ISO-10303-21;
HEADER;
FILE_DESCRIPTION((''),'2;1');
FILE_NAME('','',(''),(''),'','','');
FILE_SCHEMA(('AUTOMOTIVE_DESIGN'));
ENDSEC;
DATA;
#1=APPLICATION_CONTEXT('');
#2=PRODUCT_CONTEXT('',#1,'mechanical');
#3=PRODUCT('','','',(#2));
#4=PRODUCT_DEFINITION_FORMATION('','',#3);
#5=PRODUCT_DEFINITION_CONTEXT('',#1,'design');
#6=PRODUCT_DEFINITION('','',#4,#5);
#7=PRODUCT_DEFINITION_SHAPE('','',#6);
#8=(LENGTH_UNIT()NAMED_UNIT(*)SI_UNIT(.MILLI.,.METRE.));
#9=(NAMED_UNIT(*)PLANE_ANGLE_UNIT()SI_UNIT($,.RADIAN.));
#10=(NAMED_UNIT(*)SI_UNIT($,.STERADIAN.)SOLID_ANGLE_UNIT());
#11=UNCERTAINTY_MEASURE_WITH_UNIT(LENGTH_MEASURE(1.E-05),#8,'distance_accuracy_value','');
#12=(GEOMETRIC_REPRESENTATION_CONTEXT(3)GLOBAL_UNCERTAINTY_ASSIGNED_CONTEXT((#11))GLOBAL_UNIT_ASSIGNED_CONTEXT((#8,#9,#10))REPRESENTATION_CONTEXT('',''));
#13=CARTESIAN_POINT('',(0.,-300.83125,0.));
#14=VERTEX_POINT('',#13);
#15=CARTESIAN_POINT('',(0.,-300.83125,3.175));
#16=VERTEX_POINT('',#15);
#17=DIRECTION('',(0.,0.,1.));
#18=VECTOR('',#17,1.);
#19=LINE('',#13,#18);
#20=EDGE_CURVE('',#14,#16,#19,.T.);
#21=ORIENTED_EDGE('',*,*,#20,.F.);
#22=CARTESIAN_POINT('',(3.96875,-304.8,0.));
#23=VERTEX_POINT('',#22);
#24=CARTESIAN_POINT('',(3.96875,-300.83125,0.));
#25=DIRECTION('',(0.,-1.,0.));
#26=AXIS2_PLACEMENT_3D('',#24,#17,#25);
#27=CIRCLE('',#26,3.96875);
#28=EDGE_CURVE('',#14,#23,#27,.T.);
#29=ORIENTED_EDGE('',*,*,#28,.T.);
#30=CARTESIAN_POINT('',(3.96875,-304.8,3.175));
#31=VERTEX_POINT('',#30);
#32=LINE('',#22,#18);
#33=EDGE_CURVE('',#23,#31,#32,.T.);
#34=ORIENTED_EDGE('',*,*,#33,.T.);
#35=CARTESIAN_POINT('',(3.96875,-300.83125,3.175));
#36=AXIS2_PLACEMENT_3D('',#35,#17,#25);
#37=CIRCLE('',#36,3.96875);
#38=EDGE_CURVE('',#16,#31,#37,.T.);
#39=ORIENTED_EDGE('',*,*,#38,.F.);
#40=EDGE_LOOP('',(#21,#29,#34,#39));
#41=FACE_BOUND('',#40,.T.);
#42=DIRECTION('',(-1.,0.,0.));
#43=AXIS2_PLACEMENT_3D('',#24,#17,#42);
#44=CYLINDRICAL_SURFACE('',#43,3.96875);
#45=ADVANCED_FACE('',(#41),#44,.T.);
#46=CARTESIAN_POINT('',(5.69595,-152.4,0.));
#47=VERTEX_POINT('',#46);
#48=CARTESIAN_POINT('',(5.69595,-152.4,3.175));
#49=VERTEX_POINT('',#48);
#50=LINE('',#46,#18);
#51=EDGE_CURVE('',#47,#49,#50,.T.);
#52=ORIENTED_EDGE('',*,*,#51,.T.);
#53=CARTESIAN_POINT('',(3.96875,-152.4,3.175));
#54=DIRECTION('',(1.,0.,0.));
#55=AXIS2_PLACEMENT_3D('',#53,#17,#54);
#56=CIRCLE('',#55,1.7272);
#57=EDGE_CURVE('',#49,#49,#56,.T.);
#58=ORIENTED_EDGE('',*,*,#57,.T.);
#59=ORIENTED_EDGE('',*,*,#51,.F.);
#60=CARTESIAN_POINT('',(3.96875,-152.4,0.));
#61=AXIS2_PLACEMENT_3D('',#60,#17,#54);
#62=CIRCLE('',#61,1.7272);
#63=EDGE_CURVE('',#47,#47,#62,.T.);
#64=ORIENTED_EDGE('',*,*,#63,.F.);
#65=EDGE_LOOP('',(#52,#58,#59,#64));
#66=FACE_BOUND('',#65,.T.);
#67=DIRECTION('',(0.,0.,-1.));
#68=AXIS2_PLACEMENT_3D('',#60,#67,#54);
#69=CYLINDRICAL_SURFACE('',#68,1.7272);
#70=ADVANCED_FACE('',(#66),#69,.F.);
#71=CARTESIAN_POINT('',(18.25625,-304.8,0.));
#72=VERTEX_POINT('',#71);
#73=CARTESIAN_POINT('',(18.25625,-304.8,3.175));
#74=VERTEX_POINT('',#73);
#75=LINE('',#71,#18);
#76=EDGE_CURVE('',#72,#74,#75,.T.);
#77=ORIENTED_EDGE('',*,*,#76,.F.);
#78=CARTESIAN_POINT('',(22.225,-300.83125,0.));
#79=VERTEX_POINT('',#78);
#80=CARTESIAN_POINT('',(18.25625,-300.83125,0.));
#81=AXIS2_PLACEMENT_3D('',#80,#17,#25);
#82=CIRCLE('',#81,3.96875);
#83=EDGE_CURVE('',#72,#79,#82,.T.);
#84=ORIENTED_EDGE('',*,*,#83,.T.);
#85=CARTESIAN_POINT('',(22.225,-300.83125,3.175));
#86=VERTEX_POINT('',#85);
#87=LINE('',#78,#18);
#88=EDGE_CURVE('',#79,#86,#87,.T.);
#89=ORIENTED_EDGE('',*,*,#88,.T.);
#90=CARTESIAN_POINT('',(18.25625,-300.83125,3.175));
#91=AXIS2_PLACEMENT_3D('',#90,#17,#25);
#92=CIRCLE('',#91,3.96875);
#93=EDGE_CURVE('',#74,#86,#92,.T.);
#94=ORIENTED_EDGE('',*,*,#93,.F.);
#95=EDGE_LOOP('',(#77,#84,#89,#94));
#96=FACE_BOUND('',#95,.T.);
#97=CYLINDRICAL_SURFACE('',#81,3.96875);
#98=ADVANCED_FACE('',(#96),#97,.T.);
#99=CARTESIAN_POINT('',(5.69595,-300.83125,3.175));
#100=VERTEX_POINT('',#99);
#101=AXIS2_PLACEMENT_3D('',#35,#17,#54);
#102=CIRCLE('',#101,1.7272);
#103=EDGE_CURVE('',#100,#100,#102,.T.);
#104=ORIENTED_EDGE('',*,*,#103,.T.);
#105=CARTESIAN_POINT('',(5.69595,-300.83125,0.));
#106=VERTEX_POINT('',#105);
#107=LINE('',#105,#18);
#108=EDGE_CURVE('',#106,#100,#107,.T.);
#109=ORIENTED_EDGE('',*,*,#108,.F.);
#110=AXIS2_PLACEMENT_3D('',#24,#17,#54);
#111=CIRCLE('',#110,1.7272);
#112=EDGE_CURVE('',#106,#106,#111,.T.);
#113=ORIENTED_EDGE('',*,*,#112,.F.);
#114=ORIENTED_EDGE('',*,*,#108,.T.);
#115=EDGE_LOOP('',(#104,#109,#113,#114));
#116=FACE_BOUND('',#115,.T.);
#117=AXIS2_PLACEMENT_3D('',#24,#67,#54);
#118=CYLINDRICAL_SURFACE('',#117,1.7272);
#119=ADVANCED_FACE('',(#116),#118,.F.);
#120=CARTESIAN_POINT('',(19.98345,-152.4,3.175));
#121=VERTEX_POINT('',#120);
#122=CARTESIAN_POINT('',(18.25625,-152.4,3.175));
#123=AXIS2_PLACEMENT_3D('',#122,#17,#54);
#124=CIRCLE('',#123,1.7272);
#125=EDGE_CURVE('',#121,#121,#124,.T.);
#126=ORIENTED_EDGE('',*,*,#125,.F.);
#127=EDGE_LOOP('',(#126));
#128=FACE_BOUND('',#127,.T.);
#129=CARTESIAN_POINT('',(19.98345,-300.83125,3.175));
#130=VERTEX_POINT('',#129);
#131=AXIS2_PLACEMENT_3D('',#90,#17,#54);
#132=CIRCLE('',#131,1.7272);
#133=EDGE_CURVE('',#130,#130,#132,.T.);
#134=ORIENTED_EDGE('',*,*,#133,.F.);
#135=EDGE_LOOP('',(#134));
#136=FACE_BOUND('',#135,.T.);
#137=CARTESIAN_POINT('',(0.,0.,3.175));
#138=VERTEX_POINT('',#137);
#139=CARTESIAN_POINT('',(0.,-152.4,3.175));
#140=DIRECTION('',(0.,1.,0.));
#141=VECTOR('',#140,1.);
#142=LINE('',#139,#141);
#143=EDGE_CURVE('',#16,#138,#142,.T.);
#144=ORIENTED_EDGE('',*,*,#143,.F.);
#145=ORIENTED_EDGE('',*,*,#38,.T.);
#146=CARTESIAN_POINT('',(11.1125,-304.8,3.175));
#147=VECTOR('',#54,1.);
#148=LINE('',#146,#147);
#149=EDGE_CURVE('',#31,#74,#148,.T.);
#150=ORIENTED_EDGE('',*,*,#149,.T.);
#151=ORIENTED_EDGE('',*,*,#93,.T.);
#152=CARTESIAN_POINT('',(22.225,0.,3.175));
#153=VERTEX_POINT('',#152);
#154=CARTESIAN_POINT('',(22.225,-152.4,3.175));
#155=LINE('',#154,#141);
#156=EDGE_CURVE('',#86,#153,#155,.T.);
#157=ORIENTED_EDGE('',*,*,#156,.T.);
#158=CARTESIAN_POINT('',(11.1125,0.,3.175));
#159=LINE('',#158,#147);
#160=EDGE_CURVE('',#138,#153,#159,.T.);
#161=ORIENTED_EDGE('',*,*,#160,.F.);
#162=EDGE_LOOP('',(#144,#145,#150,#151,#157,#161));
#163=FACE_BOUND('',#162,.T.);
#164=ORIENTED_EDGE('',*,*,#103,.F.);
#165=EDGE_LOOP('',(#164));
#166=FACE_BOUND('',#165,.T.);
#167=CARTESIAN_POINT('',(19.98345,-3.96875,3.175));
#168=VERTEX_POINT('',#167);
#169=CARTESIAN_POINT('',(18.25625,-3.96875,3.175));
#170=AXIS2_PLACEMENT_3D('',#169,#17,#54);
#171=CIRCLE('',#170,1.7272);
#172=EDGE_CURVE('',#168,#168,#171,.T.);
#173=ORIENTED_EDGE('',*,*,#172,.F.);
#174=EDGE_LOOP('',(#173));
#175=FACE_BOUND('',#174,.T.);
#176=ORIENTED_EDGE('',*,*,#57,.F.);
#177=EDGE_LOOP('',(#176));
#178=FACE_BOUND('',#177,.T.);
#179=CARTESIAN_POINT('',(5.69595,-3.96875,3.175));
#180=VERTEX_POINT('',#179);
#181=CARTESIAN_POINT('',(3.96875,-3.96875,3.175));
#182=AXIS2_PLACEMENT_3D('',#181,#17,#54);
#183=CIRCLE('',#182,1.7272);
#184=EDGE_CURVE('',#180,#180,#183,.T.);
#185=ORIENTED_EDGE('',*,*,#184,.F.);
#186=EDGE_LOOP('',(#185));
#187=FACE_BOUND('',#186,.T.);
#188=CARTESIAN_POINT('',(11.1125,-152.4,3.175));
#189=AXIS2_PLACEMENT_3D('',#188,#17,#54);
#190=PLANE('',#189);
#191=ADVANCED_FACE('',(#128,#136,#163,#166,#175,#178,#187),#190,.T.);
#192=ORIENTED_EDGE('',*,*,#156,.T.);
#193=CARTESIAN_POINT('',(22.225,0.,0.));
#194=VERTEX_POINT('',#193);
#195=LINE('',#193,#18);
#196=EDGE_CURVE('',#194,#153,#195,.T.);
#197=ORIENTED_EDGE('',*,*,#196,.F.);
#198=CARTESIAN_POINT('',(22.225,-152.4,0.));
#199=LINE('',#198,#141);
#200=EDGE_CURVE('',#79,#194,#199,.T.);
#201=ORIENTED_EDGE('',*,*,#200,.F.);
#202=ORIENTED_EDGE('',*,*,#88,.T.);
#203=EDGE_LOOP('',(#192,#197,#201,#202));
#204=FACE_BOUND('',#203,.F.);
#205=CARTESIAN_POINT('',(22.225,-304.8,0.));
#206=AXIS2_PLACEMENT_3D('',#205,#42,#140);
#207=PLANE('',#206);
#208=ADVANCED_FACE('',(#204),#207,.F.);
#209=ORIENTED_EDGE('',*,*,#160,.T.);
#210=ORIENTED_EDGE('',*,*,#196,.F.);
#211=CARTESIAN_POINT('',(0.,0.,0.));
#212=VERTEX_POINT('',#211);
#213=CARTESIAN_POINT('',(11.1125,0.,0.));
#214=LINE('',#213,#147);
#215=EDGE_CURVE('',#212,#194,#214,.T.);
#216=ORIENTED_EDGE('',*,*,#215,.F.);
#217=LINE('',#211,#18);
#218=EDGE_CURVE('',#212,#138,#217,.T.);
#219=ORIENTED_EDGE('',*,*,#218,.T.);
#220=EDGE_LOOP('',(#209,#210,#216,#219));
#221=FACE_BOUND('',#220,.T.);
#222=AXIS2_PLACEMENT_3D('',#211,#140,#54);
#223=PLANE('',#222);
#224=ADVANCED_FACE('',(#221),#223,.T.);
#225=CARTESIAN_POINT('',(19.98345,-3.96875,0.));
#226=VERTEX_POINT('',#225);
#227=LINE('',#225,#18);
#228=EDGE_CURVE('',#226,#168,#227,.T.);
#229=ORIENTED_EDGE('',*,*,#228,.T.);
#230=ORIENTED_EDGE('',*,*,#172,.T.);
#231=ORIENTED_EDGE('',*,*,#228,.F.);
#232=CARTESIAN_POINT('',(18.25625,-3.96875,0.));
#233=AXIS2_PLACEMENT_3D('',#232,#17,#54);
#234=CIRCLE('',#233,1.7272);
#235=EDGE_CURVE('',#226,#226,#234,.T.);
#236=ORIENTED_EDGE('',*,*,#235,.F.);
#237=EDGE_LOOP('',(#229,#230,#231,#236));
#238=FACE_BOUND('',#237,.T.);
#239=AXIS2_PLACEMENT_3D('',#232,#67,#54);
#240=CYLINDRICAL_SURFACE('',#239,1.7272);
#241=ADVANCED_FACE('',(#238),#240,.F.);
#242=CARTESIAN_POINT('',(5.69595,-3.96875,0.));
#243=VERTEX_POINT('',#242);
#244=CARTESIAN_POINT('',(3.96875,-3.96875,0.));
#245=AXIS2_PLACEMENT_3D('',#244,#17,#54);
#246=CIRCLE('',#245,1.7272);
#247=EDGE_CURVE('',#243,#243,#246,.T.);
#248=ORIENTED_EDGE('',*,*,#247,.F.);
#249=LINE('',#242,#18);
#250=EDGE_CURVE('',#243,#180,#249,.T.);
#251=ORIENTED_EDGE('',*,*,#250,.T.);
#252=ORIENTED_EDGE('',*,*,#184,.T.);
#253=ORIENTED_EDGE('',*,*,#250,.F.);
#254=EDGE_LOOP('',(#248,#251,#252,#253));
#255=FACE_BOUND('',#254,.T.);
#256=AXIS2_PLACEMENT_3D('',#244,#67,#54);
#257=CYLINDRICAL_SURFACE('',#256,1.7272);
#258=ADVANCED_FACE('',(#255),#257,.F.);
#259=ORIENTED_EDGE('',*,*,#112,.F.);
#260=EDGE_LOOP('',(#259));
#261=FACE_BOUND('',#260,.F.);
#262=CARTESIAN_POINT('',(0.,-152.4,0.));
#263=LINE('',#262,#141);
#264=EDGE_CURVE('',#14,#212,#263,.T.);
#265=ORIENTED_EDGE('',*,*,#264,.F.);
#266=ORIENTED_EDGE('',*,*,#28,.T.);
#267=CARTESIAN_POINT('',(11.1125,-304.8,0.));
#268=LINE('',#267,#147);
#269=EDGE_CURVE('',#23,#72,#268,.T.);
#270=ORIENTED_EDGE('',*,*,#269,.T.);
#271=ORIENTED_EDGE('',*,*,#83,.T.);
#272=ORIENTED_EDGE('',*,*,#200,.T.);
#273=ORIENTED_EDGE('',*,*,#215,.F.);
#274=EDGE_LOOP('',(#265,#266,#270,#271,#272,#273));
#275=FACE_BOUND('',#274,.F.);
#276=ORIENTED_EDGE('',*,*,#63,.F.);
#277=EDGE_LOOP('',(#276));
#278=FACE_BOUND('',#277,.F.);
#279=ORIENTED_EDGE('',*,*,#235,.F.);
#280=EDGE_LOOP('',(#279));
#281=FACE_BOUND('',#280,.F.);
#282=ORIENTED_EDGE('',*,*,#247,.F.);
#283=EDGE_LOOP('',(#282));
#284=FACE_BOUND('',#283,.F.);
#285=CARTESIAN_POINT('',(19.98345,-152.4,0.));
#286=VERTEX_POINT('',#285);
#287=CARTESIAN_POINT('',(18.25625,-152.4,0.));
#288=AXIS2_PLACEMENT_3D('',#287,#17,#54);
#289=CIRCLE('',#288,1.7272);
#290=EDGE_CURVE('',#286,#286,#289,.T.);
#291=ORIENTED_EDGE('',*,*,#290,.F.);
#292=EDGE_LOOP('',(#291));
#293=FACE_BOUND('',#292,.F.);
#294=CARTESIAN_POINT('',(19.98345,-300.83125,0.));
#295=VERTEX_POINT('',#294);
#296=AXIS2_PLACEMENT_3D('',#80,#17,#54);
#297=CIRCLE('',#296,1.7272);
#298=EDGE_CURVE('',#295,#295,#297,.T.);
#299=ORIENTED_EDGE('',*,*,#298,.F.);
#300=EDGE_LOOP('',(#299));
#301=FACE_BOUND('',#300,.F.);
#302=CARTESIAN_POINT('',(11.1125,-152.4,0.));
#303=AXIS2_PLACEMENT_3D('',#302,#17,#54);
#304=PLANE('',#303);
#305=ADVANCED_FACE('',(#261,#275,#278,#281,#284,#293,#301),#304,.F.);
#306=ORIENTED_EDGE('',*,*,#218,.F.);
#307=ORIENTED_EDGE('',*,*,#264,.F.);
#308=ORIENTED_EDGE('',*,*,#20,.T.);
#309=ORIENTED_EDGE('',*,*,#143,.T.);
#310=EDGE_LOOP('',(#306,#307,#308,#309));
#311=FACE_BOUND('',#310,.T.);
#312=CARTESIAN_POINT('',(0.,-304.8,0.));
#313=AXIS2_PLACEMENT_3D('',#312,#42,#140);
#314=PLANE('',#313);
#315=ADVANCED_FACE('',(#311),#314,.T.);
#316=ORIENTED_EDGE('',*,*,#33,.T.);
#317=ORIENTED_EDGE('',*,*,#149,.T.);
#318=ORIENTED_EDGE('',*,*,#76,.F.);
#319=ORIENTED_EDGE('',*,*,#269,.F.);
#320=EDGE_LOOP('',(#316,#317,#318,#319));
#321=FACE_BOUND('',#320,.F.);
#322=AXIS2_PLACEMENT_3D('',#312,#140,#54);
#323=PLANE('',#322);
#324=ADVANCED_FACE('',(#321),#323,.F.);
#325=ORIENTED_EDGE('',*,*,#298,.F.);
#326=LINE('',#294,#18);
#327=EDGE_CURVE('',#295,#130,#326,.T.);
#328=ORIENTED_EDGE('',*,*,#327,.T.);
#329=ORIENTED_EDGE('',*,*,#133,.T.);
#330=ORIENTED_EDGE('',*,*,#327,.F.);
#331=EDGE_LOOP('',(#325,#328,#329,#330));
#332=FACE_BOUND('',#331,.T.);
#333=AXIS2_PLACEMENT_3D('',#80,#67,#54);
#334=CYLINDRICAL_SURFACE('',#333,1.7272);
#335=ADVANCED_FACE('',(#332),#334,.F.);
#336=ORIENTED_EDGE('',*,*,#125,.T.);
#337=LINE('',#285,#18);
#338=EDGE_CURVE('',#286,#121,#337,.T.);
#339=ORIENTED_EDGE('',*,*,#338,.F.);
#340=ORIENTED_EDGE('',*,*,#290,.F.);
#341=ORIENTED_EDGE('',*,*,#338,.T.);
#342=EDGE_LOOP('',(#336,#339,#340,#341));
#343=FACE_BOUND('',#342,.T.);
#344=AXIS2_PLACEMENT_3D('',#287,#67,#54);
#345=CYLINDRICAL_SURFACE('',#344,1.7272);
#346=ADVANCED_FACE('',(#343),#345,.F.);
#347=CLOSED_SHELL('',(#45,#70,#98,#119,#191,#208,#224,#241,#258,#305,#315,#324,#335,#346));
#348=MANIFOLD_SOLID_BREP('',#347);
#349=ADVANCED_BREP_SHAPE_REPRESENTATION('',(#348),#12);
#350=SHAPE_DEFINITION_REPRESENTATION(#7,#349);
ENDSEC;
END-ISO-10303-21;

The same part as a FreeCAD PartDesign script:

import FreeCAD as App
import Part
import Sketcher

V = App.Vector
Q = App.Units.Quantity


def edges_at(feature, points):
    """Names of the edges that pass closest to the given points."""
    edges = feature.Shape.Edges
    near = lambda p: min(range(len(edges)), key=lambda i: edges[i].distToShape(Part.Vertex(*p))[0])
    return sorted({f"Edge{near(p) + 1}" for p in points})

doc = App.newDocument("Part")
body = doc.addObject("PartDesign::Body", "Body")

# Sketch on XY plane
sketch1 = doc.addObject("Sketcher::SketchObject", "Sketch")
body.addObject(sketch1)
sketch1.AttachmentSupport = (doc.XY_Plane, [""])
sketch1.MapMode = "FlatFace"
sketch1.addGeometry([
    Part.LineSegment(V(0, 0, 0), V(0, -304.8, 0)),  # 0
    Part.LineSegment(V(0, -304.8, 0), V(22.2, -304.8, 0)),  # 1
    Part.LineSegment(V(22.2, -304.8, 0), V(22.2, 0, 0)),  # 2
    Part.LineSegment(V(22.2, 0, 0), V(0, 0, 0)),  # 3
    Part.Circle(V(4, -300.8, 0), V(0, 0, 1), 1.7),  # 4
    Part.Circle(V(4, -152.4, 0), V(0, 0, 1), 1.7),  # 5
    Part.Circle(V(18.3, -300.8, 0), V(0, 0, 1), 1.7),  # 6
    Part.Circle(V(18.3, -152.4, 0), V(0, 0, 1), 1.7),  # 7
    Part.Circle(V(4, -4, 0), V(0, 0, 1), 1.7),  # 8
    Part.Circle(V(18.3, -4, 0), V(0, 0, 1), 1.7),  # 9
], False)
sketch1.addConstraint([
    Sketcher.Constraint("Coincident", 0, 2, 1, 1),
    Sketcher.Constraint("Coincident", 1, 2, 2, 1),
    Sketcher.Constraint("Coincident", 2, 2, 3, 1),
    Sketcher.Constraint("Coincident", 3, 2, 0, 1),
    Sketcher.Constraint("Vertical", 0),
    Sketcher.Constraint("Horizontal", 1),
    Sketcher.Constraint("Vertical", 2),
    Sketcher.Constraint("Horizontal", 3),
    Sketcher.Constraint("Coincident", 3, 2, -1, 1),
    Sketcher.Constraint("Equal", 4, 5),
    Sketcher.Constraint("Equal", 5, 6),
    Sketcher.Constraint("Equal", 6, 7),
    Sketcher.Constraint("Equal", 7, 8),
    Sketcher.Constraint("Equal", 8, 9),
    Sketcher.Constraint("Horizontal", 4, 3, 6, 3),
    Sketcher.Constraint("Horizontal", 5, 3, 7, 3),
    Sketcher.Constraint("Horizontal", 8, 3, 9, 3),
    Sketcher.Constraint("Vertical", 4, 3, 5, 3),
    Sketcher.Constraint("Vertical", 6, 3, 7, 3),
    Sketcher.Constraint("Vertical", 5, 3, 8, 3),
    Sketcher.Constraint("Vertical", 7, 3, 9, 3),
    Sketcher.Constraint("DistanceY", 0, 2, 0, 1, Q("12 in")),
    Sketcher.Constraint("Diameter", 4, Q("0.136 in")),
    Sketcher.Constraint("DistanceY", 5, 3, -1, 1, Q("6 in")),
    Sketcher.Constraint("DistanceX", 1, 1, 1, 2, Q("0.875 in")),
    Sketcher.Constraint("DistanceX", -1, 1, 4, 3, Q("0.15625 in")),
    Sketcher.Constraint("DistanceY", 4, 3, -1, 1, Q("11.84375 in")),
    Sketcher.Constraint("DistanceX", -1, 1, 6, 3, Q("0.71875 in")),
    Sketcher.Constraint("DistanceY", 8, 3, -1, 1, Q("0.15625 in")),
])
pad1 = doc.addObject("PartDesign::Pad", "Pad")
body.addObject(pad1)
pad1.Profile = sketch1
pad1.Length = Q("0.125 in")
doc.recompute()

fillet = doc.addObject("PartDesign::Fillet", "Fillet")
body.addObject(fillet)
fillet.Base = (pad1, edges_at(pad1, [(0, -304.8, 1.587), (22.225, -304.8, 1.587)]))
fillet.Radius = Q("0.15625 in")

doc.recompute()
